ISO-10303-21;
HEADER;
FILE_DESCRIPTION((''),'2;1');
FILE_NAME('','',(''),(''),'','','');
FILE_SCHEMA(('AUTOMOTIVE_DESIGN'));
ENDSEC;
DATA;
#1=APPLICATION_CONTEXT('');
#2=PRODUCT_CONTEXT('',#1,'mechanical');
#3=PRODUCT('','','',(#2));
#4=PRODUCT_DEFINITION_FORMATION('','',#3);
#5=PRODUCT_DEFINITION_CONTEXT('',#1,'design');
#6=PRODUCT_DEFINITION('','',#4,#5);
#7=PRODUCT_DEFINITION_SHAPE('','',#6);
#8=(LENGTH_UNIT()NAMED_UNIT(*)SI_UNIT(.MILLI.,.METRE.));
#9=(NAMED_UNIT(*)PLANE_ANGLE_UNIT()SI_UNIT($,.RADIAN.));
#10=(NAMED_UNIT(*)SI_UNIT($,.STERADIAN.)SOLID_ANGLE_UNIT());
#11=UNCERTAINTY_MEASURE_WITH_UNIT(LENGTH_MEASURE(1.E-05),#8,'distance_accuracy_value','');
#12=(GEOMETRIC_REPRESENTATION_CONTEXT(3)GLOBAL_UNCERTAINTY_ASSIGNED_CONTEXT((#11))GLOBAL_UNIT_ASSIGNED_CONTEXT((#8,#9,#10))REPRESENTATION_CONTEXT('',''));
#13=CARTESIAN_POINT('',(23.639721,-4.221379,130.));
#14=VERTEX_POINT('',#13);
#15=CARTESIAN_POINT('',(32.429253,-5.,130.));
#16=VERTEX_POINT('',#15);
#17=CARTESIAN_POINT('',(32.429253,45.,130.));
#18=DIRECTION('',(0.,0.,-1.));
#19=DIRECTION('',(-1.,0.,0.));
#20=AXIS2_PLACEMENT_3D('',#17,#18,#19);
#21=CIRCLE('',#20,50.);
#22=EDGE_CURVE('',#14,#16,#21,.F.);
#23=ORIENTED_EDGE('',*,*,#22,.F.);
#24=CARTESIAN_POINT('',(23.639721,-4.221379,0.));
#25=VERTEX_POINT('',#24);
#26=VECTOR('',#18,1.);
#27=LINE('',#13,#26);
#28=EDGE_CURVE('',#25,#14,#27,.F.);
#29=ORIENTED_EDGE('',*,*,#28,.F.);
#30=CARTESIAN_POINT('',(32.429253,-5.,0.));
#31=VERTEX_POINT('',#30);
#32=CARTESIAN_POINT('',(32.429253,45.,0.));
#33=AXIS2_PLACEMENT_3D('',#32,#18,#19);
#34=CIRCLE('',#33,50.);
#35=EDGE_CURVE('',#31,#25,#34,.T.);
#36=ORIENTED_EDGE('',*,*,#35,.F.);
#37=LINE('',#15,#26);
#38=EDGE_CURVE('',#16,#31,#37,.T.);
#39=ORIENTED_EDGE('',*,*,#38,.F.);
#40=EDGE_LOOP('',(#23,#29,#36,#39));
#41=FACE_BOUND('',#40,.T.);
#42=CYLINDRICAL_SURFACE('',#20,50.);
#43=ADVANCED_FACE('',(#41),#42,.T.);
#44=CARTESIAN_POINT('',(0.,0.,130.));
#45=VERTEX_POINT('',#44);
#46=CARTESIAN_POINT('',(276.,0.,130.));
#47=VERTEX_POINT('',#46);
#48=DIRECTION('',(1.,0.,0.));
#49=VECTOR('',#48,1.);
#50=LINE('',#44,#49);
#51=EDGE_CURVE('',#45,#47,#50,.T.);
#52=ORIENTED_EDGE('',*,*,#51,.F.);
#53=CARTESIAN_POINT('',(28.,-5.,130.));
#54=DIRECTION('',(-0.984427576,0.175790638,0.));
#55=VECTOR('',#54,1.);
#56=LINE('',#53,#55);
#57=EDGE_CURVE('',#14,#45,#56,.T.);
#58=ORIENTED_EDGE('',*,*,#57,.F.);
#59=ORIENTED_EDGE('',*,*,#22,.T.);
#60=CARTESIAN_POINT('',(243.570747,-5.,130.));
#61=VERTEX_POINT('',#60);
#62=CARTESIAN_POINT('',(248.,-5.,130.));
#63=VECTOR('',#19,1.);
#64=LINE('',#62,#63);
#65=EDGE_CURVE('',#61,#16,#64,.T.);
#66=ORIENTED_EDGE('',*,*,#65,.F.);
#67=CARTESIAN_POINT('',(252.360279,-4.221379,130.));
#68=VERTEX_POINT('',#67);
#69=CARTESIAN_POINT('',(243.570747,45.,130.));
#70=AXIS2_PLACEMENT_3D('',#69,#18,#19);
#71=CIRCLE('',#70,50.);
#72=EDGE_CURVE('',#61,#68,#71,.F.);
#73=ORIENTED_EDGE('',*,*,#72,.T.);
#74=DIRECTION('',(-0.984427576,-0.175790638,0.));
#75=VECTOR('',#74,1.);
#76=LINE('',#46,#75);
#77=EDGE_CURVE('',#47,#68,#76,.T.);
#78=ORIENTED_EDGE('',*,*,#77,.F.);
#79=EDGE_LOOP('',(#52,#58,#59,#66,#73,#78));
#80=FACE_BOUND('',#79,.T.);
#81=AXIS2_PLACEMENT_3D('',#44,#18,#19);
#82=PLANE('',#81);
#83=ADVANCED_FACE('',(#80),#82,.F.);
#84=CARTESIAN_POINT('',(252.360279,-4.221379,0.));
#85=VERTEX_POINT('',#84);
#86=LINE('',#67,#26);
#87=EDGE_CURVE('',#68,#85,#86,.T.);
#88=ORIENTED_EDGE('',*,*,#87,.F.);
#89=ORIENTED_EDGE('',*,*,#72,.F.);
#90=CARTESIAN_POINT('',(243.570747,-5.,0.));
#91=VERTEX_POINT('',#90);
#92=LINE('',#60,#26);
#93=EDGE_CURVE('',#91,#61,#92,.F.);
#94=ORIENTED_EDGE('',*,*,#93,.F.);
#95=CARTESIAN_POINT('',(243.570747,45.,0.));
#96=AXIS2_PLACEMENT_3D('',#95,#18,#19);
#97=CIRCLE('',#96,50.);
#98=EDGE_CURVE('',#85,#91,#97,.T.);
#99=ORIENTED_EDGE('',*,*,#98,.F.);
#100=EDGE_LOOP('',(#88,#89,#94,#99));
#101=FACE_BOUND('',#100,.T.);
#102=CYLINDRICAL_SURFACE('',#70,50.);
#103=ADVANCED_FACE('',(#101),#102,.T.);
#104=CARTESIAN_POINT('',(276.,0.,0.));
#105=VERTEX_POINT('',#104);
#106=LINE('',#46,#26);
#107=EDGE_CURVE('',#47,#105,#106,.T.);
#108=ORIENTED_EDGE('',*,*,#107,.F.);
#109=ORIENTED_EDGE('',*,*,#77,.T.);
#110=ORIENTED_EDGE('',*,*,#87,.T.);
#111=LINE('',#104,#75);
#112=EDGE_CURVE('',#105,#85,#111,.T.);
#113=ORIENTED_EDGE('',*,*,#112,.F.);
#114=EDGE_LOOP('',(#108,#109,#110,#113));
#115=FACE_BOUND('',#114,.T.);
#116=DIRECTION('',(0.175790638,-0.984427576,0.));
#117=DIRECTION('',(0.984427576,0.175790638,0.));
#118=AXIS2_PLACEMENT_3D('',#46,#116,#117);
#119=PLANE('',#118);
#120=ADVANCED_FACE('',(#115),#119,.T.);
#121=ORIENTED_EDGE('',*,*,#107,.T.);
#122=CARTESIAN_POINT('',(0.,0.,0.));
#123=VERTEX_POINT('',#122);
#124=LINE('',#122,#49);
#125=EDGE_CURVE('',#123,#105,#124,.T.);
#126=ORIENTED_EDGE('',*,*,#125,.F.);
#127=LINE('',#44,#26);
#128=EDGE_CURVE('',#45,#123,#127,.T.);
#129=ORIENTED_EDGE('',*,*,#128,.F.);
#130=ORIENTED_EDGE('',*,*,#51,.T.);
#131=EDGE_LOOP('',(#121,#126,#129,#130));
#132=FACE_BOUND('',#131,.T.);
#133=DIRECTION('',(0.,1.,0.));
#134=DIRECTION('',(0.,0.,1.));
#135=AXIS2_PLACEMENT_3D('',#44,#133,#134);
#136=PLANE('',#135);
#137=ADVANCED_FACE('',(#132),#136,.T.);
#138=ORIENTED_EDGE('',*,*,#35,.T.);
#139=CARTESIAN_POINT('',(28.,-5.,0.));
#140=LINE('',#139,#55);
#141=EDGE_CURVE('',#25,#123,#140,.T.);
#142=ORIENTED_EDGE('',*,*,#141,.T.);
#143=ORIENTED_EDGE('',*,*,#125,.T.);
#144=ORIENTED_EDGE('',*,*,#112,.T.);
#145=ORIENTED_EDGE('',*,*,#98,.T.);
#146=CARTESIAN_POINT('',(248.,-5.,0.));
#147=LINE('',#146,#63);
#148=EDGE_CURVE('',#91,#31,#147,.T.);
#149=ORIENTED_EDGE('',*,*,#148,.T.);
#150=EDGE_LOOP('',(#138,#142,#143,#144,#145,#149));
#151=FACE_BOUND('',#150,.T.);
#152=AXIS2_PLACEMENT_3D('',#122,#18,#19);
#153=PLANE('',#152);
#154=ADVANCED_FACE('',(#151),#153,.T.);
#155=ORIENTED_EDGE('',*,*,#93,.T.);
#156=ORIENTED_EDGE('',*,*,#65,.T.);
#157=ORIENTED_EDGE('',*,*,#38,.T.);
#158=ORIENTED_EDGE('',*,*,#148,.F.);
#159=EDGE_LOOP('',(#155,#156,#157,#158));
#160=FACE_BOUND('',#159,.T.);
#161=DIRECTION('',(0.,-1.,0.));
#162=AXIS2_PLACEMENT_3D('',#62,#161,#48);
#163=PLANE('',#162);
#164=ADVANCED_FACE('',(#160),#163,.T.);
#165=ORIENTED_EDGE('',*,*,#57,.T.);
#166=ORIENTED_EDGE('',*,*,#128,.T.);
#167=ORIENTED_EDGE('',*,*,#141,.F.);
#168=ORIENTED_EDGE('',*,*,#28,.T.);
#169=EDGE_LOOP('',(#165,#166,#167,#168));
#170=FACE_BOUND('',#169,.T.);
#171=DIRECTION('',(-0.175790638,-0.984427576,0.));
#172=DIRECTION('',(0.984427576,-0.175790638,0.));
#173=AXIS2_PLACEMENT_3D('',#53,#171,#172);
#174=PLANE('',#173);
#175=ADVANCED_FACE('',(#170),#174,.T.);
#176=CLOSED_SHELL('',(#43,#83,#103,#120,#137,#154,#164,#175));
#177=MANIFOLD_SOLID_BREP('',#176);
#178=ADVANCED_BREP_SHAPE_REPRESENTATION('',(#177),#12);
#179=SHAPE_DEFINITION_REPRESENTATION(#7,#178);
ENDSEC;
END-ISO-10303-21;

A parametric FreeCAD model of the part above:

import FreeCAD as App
import Part
import Sketcher


def edges_at(feature, points):
    """Names of the edges that pass closest to the given points."""
    edges = feature.Shape.Edges
    near = lambda p: min(range(len(edges)), key=lambda i: edges[i].distToShape(Part.Vertex(*p))[0])
    return sorted({f"Edge{near(p) + 1}" for p in points})


def add_polygon(sketch, points):
    """Adds a closed chain of lines whose ends are joined by coincident constraints."""
    first, n = sketch.GeometryCount, len(points)
    for a, b in zip(points, points[1:] + points[:1]):
        sketch.addGeometry(Part.LineSegment(App.Vector(*a, 0), App.Vector(*b, 0)), False)
    for i in range(n):
        sketch.addConstraint(Sketcher.Constraint("Coincident", first + i, 2, first + (i + 1) % n, 1))

doc = App.newDocument("Part")
params = doc.addObject("Spreadsheet::Sheet", "Params")
for row, (alias, value) in enumerate([
    ("sketch1_width", "276 mm"),
    ("sketch1_width2", "220 mm"),
    ("pad1_length", "130 mm"),
    ("fillet_radius", "50 mm"),
], start=1):
    params.set(f"A{row}", alias)
    params.set(f"B{row}", "=" + value)
    params.setAlias(f"B{row}", alias)

body = doc.addObject("PartDesign::Body", "Body")

# Sketch on XY plane
sketch1 = body.newObject("Sketcher::SketchObject", "Sketch")
sketch1.AttachmentSupport = (doc.getObject("XY_Plane"), [""])
sketch1.MapMode = "FlatFace"
add_polygon(sketch1, [(276, 0), (0, 0), (28, -5), (248, -5)])  # lines 0-3
sketch1.addConstraint([
    Sketcher.Constraint("Horizontal", 0),
    Sketcher.Constraint("Horizontal", 2),
    Sketcher.Constraint("Coincident", 0, 2, -1, 1),
    Sketcher.Constraint("Equal", 1, 3),
    Sketcher.Constraint("DistanceX", 0, 2, 0, 1, 276.0),
    Sketcher.Constraint("DistanceX", 2, 1, 2, 2, 220.0),
    Sketcher.Constraint("DistanceY", 1, 2, -1, 1, 5.0),
])
sketch1.setExpression("Constraints[8]", "Params.sketch1_width")
sketch1.setExpression("Constraints[9]", "Params.sketch1_width2")
pad1 = body.newObject("PartDesign::Pad", "Pad")
pad1.Profile = sketch1
pad1.setExpression("Length", "Params.pad1_length")
doc.recompute()

fillet = body.newObject("PartDesign::Fillet", "Fillet")
fillet.Base = (pad1, edges_at(pad1, [(248, -5, 65), (28, -5, 65)]))
fillet.setExpression("Radius", "Params.fillet_radius")

doc.recompute()
